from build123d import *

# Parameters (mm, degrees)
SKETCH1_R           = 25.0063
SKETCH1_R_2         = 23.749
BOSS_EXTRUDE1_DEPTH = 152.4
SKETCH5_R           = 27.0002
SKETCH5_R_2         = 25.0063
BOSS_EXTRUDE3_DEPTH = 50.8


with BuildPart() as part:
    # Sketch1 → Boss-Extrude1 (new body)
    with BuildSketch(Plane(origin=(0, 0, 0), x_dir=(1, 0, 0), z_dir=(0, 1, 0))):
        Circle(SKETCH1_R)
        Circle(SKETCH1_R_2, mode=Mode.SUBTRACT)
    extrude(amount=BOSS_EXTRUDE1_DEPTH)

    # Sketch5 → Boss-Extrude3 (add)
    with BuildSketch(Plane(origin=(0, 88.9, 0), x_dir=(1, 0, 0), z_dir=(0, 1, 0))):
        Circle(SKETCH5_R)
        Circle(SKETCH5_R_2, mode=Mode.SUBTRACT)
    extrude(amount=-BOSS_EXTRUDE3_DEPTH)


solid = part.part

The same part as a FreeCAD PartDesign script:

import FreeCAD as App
import Part
import Sketcher
Q = App.Units.Quantity

doc = App.newDocument("Part")
body = doc.addObject("PartDesign::Body", "Body")

# Sketch on XZ plane
sketch1 = doc.addObject("Sketcher::SketchObject", "Sketch")
body.addObject(sketch1)
sketch1.AttachmentSupport = (doc.XZ_Plane, [""])
sketch1.MapMode = "FlatFace"
sketch1.addGeometry(Part.Circle(App.Vector(0, 0, 0), App.Vector(0, 0, 1), 25), False)
sketch1.addGeometry(Part.Circle(App.Vector(0, 0, 0), App.Vector(0, 0, 1), 24), False)
sketch1.addConstraint(Sketcher.Constraint("Coincident", 0, 3, -1, 1))
sketch1.addConstraint(Sketcher.Constraint("Coincident", 1, 3, -1, 1))
sketch1.addConstraint(Sketcher.Constraint("Diameter", 1, Q("1.87 in")))
sketch1.addConstraint(Sketcher.Constraint("Diameter", 0, Q("1.969 in")))
pad1 = doc.addObject("PartDesign::Pad", "Pad")
body.addObject(pad1)
pad1.Profile = sketch1
pad1.Length = Q("6 in")
pad1.Reversed = True

# Sketch on XZ plane
sketch2 = doc.addObject("Sketcher::SketchObject", "Sketch001")
body.addObject(sketch2)
sketch2.AttachmentSupport = (doc.XZ_Plane, [""])
sketch2.MapMode = "FlatFace"
sketch2.AttachmentOffset = App.Placement(App.Vector(0, 0, -3.5 * 25.4), App.Rotation())
sketch2.addGeometry(Part.Circle(App.Vector(0, 0, 0), App.Vector(0, 0, 1), 27), False)
sketch2.addGeometry(Part.Circle(App.Vector(0, 0, 0), App.Vector(0, 0, 1), 25), False)
sketch2.addConstraint(Sketcher.Constraint("Coincident", 0, 3, -1, 1))
sketch2.addConstraint(Sketcher.Constraint("Coincident", 1, 3, -1, 1))
sketch2.addConstraint(Sketcher.Constraint("Diameter", 0, Q("2.126 in")))
sketch2.addConstraint(Sketcher.Constraint("Diameter", 1, Q("1.969 in")))
pad2 = doc.addObject("PartDesign::Pad", "Pad001")
body.addObject(pad2)
pad2.Profile = sketch2
pad2.Length = Q("2 in")

doc.recompute()
